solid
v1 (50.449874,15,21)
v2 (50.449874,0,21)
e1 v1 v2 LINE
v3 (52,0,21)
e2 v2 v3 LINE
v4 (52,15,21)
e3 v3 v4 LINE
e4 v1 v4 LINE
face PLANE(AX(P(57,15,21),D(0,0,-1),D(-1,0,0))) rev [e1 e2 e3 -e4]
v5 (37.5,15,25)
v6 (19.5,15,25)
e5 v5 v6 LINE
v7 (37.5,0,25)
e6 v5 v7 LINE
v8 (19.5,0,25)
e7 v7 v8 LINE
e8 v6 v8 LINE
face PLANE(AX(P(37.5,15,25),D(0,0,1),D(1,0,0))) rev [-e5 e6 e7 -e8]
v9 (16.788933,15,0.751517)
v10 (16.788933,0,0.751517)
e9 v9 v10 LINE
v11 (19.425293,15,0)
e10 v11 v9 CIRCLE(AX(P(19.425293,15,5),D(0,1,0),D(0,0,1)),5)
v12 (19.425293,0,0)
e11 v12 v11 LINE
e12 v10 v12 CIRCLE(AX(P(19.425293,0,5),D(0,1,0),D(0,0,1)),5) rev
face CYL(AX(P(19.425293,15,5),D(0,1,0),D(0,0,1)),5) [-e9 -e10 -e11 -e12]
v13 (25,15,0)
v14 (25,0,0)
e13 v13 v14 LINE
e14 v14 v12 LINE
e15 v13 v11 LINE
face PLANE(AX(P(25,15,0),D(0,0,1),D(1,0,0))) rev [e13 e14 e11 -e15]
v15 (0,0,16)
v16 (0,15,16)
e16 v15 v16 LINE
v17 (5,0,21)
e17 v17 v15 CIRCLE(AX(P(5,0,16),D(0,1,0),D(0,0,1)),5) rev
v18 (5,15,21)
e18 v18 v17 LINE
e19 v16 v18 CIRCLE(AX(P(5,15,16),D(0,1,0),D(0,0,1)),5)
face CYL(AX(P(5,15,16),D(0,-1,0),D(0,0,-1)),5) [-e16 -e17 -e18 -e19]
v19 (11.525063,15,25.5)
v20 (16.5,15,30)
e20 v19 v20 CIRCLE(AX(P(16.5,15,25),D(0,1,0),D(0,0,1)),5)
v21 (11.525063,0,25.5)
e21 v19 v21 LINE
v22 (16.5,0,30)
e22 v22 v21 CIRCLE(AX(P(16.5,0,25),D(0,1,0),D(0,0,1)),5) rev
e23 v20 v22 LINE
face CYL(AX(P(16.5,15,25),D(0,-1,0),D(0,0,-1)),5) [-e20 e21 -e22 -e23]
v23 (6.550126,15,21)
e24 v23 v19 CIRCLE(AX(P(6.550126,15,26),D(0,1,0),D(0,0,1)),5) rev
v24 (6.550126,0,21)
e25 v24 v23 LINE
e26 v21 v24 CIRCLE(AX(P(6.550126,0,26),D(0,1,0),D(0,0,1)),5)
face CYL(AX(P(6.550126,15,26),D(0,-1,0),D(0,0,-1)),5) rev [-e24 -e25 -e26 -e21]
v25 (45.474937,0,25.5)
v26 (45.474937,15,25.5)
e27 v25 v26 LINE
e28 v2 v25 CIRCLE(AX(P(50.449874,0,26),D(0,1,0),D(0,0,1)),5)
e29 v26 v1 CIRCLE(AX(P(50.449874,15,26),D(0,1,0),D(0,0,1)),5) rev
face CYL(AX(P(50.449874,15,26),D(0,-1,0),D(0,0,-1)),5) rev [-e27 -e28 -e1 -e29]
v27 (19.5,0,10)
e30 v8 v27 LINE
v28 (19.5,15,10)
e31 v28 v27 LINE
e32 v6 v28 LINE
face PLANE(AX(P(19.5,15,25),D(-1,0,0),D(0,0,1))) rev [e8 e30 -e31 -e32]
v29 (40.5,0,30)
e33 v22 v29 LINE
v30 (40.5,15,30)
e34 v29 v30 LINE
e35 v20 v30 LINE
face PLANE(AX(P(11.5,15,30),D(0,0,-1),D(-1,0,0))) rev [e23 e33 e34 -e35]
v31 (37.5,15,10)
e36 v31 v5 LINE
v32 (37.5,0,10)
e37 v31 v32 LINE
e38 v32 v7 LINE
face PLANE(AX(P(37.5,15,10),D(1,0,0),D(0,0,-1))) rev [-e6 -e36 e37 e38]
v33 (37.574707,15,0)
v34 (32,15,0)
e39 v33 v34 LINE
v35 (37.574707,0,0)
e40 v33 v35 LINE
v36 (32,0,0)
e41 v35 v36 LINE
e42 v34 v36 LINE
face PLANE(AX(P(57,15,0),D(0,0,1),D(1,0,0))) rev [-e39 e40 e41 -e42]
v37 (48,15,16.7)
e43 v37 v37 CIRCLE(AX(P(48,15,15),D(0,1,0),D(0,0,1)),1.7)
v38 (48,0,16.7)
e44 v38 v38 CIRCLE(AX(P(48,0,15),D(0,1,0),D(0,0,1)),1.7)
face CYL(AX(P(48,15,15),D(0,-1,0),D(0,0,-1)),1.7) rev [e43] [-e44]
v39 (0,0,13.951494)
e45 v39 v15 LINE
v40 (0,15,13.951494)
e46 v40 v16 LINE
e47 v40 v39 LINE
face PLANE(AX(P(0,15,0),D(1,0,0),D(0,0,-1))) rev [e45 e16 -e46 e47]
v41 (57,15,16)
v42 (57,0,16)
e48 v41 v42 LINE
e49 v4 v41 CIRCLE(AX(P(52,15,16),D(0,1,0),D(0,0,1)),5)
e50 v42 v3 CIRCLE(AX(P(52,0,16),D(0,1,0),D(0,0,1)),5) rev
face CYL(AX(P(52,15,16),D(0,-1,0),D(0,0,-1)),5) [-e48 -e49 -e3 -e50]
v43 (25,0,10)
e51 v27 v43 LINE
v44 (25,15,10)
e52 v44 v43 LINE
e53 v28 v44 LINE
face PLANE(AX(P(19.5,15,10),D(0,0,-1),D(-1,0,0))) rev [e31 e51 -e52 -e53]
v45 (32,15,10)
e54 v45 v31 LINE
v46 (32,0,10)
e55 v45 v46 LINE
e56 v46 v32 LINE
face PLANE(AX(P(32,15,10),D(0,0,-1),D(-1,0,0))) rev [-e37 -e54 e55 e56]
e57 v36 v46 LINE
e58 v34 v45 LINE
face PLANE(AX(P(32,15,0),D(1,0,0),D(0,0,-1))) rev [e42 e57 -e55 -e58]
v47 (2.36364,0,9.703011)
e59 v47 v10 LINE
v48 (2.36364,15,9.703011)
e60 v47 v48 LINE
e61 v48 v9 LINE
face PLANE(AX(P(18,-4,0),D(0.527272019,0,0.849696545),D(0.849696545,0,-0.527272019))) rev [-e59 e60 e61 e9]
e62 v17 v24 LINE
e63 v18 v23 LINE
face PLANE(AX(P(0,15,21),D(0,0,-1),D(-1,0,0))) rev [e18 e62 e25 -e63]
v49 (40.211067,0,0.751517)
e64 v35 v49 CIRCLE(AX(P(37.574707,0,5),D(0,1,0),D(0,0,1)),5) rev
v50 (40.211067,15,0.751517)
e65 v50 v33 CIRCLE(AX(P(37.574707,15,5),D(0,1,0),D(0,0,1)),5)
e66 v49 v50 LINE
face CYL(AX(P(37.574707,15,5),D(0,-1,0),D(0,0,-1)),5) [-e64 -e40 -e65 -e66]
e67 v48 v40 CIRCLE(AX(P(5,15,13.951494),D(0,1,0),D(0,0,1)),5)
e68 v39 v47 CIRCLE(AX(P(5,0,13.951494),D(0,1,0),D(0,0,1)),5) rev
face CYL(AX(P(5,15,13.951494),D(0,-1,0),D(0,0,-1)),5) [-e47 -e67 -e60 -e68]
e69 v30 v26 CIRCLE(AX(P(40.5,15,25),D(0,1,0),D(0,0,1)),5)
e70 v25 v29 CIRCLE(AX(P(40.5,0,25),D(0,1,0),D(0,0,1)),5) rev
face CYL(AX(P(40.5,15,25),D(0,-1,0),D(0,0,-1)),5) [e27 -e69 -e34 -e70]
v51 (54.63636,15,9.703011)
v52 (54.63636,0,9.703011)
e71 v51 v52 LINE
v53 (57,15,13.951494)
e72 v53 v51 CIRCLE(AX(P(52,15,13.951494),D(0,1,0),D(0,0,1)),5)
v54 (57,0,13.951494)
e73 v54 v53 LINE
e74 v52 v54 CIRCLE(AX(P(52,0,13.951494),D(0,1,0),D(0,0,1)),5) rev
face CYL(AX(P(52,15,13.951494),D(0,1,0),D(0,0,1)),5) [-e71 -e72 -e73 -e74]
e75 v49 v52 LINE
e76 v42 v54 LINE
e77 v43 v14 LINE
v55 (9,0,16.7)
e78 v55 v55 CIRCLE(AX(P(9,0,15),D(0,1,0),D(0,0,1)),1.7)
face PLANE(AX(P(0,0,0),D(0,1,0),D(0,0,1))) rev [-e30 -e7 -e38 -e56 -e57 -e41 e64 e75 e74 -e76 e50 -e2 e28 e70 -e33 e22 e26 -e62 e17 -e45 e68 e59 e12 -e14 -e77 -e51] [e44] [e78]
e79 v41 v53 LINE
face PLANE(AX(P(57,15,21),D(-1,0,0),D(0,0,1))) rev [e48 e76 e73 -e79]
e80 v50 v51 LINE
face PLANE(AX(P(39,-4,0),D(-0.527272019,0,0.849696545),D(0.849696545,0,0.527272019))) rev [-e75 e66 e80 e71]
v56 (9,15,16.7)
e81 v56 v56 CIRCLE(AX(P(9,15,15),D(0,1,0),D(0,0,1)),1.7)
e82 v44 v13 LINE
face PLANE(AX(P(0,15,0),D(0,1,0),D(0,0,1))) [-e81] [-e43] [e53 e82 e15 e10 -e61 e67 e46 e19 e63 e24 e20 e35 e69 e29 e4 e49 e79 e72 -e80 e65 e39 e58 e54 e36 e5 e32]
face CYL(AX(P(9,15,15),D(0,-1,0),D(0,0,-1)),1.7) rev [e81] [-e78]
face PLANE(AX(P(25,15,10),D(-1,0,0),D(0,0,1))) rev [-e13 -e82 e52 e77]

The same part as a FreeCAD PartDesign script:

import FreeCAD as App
import Part
import Sketcher


def edges_at(feature, points):
    """Names of the edges that pass closest to the given points."""
    edges = feature.Shape.Edges
    near = lambda p: min(range(len(edges)), key=lambda i: edges[i].distToShape(Part.Vertex(*p))[0])
    return sorted({f"Edge{near(p) + 1}" for p in points})


def add_polygon(sketch, points):
    """Adds a closed chain of lines whose ends are joined by coincident constraints."""
    first, n = sketch.GeometryCount, len(points)
    for a, b in zip(points, points[1:] + points[:1]):
        sketch.addGeometry(Part.LineSegment(App.Vector(*a, 0), App.Vector(*b, 0)), False)
    for i in range(n):
        sketch.addConstraint(Sketcher.Constraint("Coincident", first + i, 2, first + (i + 1) % n, 1))

doc = App.newDocument("Part")
body = doc.addObject("PartDesign::Body", "Body")

# Sketch on XZ plane
sketch1 = body.newObject("Sketcher::SketchObject", "Sketch")
sketch1.AttachmentSupport = (doc.getObject("XZ_Plane"), [""])
sketch1.MapMode = "FlatFace"
add_polygon(sketch1, [(0, 0), (0, 21), (11.5, 21), (11.5, 30), (45.5, 30), (45.5, 21), (57, 21), (57, 0), (32, 0), (32, 10), (37.5, 10), (37.5, 25), (19.5, 25), (19.5, 10), (25, 10), (25, 0)])  # lines 0-15
sketch1.addGeometry(Part.Circle(App.Vector(9, 15, 0), App.Vector(0, 0, 1), 1.7), False)  # 16
sketch1.addGeometry(Part.Circle(App.Vector(48, 15, 0), App.Vector(0, 0, 1), 1.7), False)  # 17
sketch1.addConstraint([
    Sketcher.Constraint("Vertical", 0),
    Sketcher.Constraint("Horizontal", 1),
    Sketcher.Constraint("Vertical", 2),
    Sketcher.Constraint("Horizontal", 3),
    Sketcher.Constraint("Vertical", 4),
    Sketcher.Constraint("Horizontal", 5),
    Sketcher.Constraint("Vertical", 6),
    Sketcher.Constraint("Horizontal", 7),
    Sketcher.Constraint("Vertical", 8),
    Sketcher.Constraint("Horizontal", 9),
    Sketcher.Constraint("Vertical", 10),
    Sketcher.Constraint("Horizontal", 11),
    Sketcher.Constraint("Vertical", 12),
    Sketcher.Constraint("Horizontal", 13),
    Sketcher.Constraint("Vertical", 14),
    Sketcher.Constraint("Horizontal", 15),
    Sketcher.Constraint("Coincident", 15, 2, -1, 1),
    Sketcher.Constraint("Equal", 16, 17),
    Sketcher.Constraint("PointOnObject", 6, 2, -1),
    Sketcher.Constraint("Horizontal", 16, 3, 17, 3),
    Sketcher.Constraint("Horizontal", 1, 2, 4, 2),
    Sketcher.Constraint("Horizontal", 9, 2, 12, 2),
    Sketcher.Constraint("Equal", 1, 5),
    Sketcher.Constraint("Equal", 9, 13),
    Sketcher.Constraint("Equal", 7, 15),
    Sketcher.Constraint("Diameter", 16, 3.4),
    Sketcher.Constraint("DistanceX", 3, 1, 3, 2, 34.0),
    Sketcher.Constraint("DistanceX", 7, 2, 7, 1, 25.0),
    Sketcher.Constraint("DistanceX", 11, 2, 11, 1, 18.0),
    Sketcher.Constraint("DistanceY", 0, 1, 0, 2, 21.0),
    Sketcher.Constraint("DistanceY", 2, 1, 2, 2, 9.0),
    Sketcher.Constraint("DistanceY", 8, 1, 8, 2, 10.0),
    Sketcher.Constraint("DistanceY", 10, 1, 10, 2, 15.0),
    Sketcher.Constraint("DistanceX", 1, 1, 1, 2, 11.5),
    Sketcher.Constraint("DistanceX", -1, 1, 16, 3, 9.0),
    Sketcher.Constraint("DistanceY", -1, 1, 16, 3, 15.0),
    Sketcher.Constraint("DistanceX", -1, 1, 17, 3, 48.0),
])
pad1 = body.newObject("PartDesign::Pad", "Pad")
pad1.Profile = sketch1
pad1.Length = 15
pad1.Reversed = True

# Sketch on XZ plane
sketch2 = body.newObject("Sketcher::SketchObject", "Sketch001")
sketch2.AttachmentSupport = (doc.getObject("XZ_Plane"), [""])
sketch2.MapMode = "FlatFace"
sketch2.AttachmentOffset = App.Placement(App.Vector(0, 0, -15), App.Rotation())
add_polygon(sketch2, [(0, 11.169748), (18, 0), (0, 0)])  # lines 0-2
add_polygon(sketch2, [(57, 0), (39, 0), (57, 11.169748)])  # lines 3-5
sketch2.addConstraint([
    Sketcher.Constraint("Horizontal", 1),
    Sketcher.Constraint("Vertical", 2),
    Sketcher.Constraint("Horizontal", 3),
    Sketcher.Constraint("Vertical", 5),
    Sketcher.Constraint("Coincident", 1, 2, -1, 1),
    Sketcher.Constraint("PointOnObject", 3, 2, -1),
    Sketcher.Constraint("Horizontal", 2, 2, 4, 2),
    Sketcher.Constraint("Equal", 1, 3),
    Sketcher.Constraint("DistanceX", 1, 2, 1, 1, 18.0),
    Sketcher.Constraint("DistanceX", -1, 1, 3, 2, 39.0),
    Sketcher.Constraint("DistanceY", 2, 1, 2, 2, 11.169748),
])
pocket1 = body.newObject("PartDesign::Pocket", "Pocket")
pocket1.Profile = sketch2
pocket1.Length = 19
pocket1.Reversed = True
doc.recompute()

fillet = body.newObject("PartDesign::Fillet", "Fillet")
fillet.Base = (pocket1, edges_at(pocket1, [
    (57, 7.5, 21),
    (45.5, 7.5, 30),
    (11.5, 7.5, 30),
    (0, 7.5, 21),
    (39, 7.5, 0),
    (0, 7.5, 11.17),
    (18, 7.5, 0),
    (57, 7.5, 11.17),
]))
fillet.Radius = 5
doc.recompute()

fillet2 = body.newObject("PartDesign::Fillet", "Fillet001")
fillet2.Base = (fillet, edges_at(fillet, [(45.5, 7.5, 21), (11.5, 7.5, 21)]))
fillet2.Radius = 5

doc.recompute()
